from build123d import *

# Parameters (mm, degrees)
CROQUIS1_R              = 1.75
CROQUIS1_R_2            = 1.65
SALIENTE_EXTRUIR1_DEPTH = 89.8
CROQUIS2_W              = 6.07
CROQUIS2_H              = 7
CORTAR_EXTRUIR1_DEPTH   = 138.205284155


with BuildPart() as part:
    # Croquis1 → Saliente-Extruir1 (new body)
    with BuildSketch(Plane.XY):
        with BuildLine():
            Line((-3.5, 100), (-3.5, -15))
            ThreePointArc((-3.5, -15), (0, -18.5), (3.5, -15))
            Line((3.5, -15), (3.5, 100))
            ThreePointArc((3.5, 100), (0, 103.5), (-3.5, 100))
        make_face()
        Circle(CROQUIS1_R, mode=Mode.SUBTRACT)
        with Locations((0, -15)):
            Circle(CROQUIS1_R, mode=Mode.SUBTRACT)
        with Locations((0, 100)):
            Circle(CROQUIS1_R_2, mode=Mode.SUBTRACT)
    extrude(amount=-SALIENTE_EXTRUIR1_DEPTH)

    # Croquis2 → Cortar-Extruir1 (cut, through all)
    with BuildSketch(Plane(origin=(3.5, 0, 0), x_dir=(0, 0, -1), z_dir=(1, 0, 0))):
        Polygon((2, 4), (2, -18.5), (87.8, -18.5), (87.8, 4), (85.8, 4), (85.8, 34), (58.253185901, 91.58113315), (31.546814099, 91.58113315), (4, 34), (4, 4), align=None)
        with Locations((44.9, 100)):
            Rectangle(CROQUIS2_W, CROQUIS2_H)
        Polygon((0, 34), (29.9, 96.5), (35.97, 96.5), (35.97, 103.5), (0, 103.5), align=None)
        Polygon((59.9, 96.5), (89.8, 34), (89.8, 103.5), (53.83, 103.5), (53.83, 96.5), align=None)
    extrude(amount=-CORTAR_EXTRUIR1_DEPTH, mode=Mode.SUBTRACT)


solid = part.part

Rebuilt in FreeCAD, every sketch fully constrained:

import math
import FreeCAD as App
import Part
import Sketcher
from FreeCAD import Vector


def add_polygon(sketch, points):
    """Adds a closed chain of lines whose ends are joined by coincident constraints."""
    first, n = sketch.GeometryCount, len(points)
    for a, b in zip(points, points[1:] + points[:1]):
        sketch.addGeometry(Part.LineSegment(App.Vector(*a, 0), App.Vector(*b, 0)), False)
    for i in range(n):
        sketch.addConstraint(Sketcher.Constraint("Coincident", first + i, 2, first + (i + 1) % n, 1))

doc = App.newDocument("Part")
body = doc.addObject("PartDesign::Body", "Body")

# Sketch on XY plane
sketch1 = doc.addObject("Sketcher::SketchObject", "Sketch")
body.addObject(sketch1)
sketch1.AttachmentSupport = (doc.XY_Plane, [""])
sketch1.MapMode = "FlatFace"
sketch1.addGeometry(Part.LineSegment(Vector(-3.5, 100, 0), Vector(-3.5, -15, 0)), False)
sketch1.addGeometry(Part.ArcOfCircle(Part.Circle(Vector(0, -15, 0), Vector(0, 0, 1), 3.5), math.radians(180), math.radians(360)), False)
sketch1.addGeometry(Part.LineSegment(Vector(3.5, -15, 0), Vector(3.5, 100, 0)), False)
sketch1.addGeometry(Part.ArcOfCircle(Part.Circle(Vector(0, 100, 0), Vector(0, 0, 1), 3.5), math.radians(0), math.radians(180)), False)
sketch1.addGeometry(Part.Circle(Vector(0, -15, 0), Vector(0, 0, 1), 1.8), False)
sketch1.addGeometry(Part.Circle(Vector(0, 0, 0), Vector(0, 0, 1), 1.8), False)
sketch1.addGeometry(Part.Circle(Vector(0, 100, 0), Vector(0, 0, 1), 1.6), False)
sketch1.addConstraint(Sketcher.Constraint("Tangent", 0, 2, 1, 1))
sketch1.addConstraint(Sketcher.Constraint("Tangent", 1, 2, 2, 1))
sketch1.addConstraint(Sketcher.Constraint("Tangent", 2, 2, 3, 1))
sketch1.addConstraint(Sketcher.Constraint("Tangent", 3, 2, 0, 1))
sketch1.addConstraint(Sketcher.Constraint("Vertical", 0))
sketch1.addConstraint(Sketcher.Constraint("Vertical", 2))
sketch1.addConstraint(Sketcher.Constraint("Coincident", 5, 3, -1, 1))
sketch1.addConstraint(Sketcher.Constraint("Coincident", 4, 3, 1, 3))
sketch1.addConstraint(Sketcher.Constraint("Coincident", 6, 3, 3, 3))
sketch1.addConstraint(Sketcher.Constraint("Equal", 4, 5))
sketch1.addConstraint(Sketcher.Constraint("PointOnObject", 1, 3, -2))
sketch1.addConstraint(Sketcher.Constraint("Diameter", 4, 3.5))
sketch1.addConstraint(Sketcher.Constraint("Diameter", 6, 3.3))
sketch1.addConstraint(Sketcher.Constraint("Radius", 1, 3.5))
sketch1.addConstraint(Sketcher.Constraint("DistanceY", 0, 2, 0, 1, 115.0))
sketch1.addConstraint(Sketcher.Constraint("DistanceY", 1, 3, -1, 1, 15.0))
pad1 = doc.addObject("PartDesign::Pad", "Pad")
body.addObject(pad1)
pad1.Profile = sketch1
pad1.Length = 89.8
pad1.Reversed = True

# Sketch on YZ plane
sketch2 = doc.addObject("Sketcher::SketchObject", "Sketch001")
body.addObject(sketch2)
sketch2.AttachmentSupport = (doc.YZ_Plane, [""])
sketch2.MapMode = "FlatFace"
sketch2.AttachmentOffset = App.Placement(Vector(0, 0, 3.5), App.Rotation())
add_polygon(sketch2, [(4, -2), (-18.5, -2), (-18.5, -87.8), (4, -87.8), (4, -85.8), (34, -85.8), (91.6, -58.3), (91.6, -31.5), (34, -4), (4, -4)])  # lines 0-9
add_polygon(sketch2, [(103.5, -41.9), (96.5, -41.9), (96.5, -47.9), (103.5, -47.9)])  # lines 10-13
add_polygon(sketch2, [(34, 0), (96.5, -29.9), (96.5, -36), (103.5, -36), (103.5, 0)])  # lines 14-18
add_polygon(sketch2, [(96.5, -59.9), (34, -89.8), (103.5, -89.8), (103.5, -53.8), (96.5, -53.8)])  # lines 19-23
sketch2.addConstraint(Sketcher.Constraint("Horizontal", 0))
sketch2.addConstraint(Sketcher.Constraint("Vertical", 1))
sketch2.addConstraint(Sketcher.Constraint("Horizontal", 2))
sketch2.addConstraint(Sketcher.Constraint("Vertical", 3))
sketch2.addConstraint(Sketcher.Constraint("Horizontal", 4))
sketch2.addConstraint(Sketcher.Constraint("Vertical", 6))
sketch2.addConstraint(Sketcher.Constraint("Horizontal", 8))
sketch2.addConstraint(Sketcher.Constraint("Vertical", 9))
sketch2.addConstraint(Sketcher.Constraint("Horizontal", 10))
sketch2.addConstraint(Sketcher.Constraint("Vertical", 11))
sketch2.addConstraint(Sketcher.Constraint("Horizontal", 12))
sketch2.addConstraint(Sketcher.Constraint("Vertical", 13))
sketch2.addConstraint(Sketcher.Constraint("Vertical", 15))
sketch2.addConstraint(Sketcher.Constraint("Horizontal", 16))
sketch2.addConstraint(Sketcher.Constraint("Vertical", 17))
sketch2.addConstraint(Sketcher.Constraint("Horizontal", 18))
sketch2.addConstraint(Sketcher.Constraint("Horizontal", 20))
sketch2.addConstraint(Sketcher.Constraint("Vertical", 21))
sketch2.addConstraint(Sketcher.Constraint("Horizontal", 22))
sketch2.addConstraint(Sketcher.Constraint("Vertical", 23))
sketch2.addConstraint(Sketcher.Constraint("PointOnObject", 17, 2, -1))
sketch2.addConstraint(Sketcher.Constraint("Parallel", 7, 14))
sketch2.addConstraint(Sketcher.Constraint("Parallel", 5, 19))
sketch2.addConstraint(Sketcher.Constraint("Vertical", 4, 2, 7, 2))
sketch2.addConstraint(Sketcher.Constraint("Vertical", 3, 2, 8, 2))
sketch2.addConstraint(Sketcher.Constraint("Vertical", 11, 2, 14, 2))
sketch2.addConstraint(Sketcher.Constraint("Vertical", 13, 2, 16, 2))
sketch2.addConstraint(Sketcher.Constraint("Vertical", 7, 2, 18, 2))
sketch2.addConstraint(Sketcher.Constraint("Vertical", 18, 2, 19, 2))
sketch2.addConstraint(Sketcher.Constraint("Vertical", 17, 2, 20, 2))
sketch2.addConstraint(Sketcher.Constraint("Vertical", 15, 2, 22, 2))
sketch2.addConstraint(Sketcher.Constraint("Equal", 3, 9))
sketch2.addConstraint(Sketcher.Constraint("Equal", 13, 15))
sketch2.addConstraint(Sketcher.Constraint("Equal", 17, 21))
sketch2.addConstraint(Sketcher.Constraint("Equal", 15, 23))
sketch2.addConstraint(Sketcher.Constraint("DistanceX", 4, 1, 4, 2, 30.0))
sketch2.addConstraint(Sketcher.Constraint("DistanceX", 10, 2, 10, 1, 7.0))
sketch2.addConstraint(Sketcher.Constraint("DistanceY", 3, 1, 3, 2, 2.0))
sketch2.addConstraint(Sketcher.Constraint("DistanceX", 0, 2, 0, 1, 22.5))
sketch2.addConstraint(Sketcher.Constraint("DistanceX", 18, 2, 18, 1, 69.5))
sketch2.addConstraint(Sketcher.Constraint("DistanceY", 1, 2, 1, 1, 85.8))
sketch2.addConstraint(Sketcher.Constraint("DistanceY", 0, 2, -1, 1, 2.0))
sketch2.addConstraint(Sketcher.Constraint("DistanceX", -1, 1, 2, 2, 4.0))
sketch2.addConstraint(Sketcher.Constraint("DistanceY", 19, 2, 4, 2, 4.0))
sketch2.addConstraint(Sketcher.Constraint("DistanceY", 11, 2, 11, 1, 6.07))
sketch2.addConstraint(Sketcher.Constraint("DistanceY", 17, 1, 17, 2, 35.97))
sketch2.addConstraint(Sketcher.Constraint("DistanceY", 10, 2, -1, 1, 41.865))
sketch2.addConstraint(Sketcher.Constraint("DistanceY", 6, 1, 6, 2, 26.706372))
pocket1 = doc.addObject("PartDesign::Pocket", "Pocket")
body.addObject(pocket1)
pocket1.Profile = sketch2
pocket1.Type = "ThroughAll"

doc.recompute()
